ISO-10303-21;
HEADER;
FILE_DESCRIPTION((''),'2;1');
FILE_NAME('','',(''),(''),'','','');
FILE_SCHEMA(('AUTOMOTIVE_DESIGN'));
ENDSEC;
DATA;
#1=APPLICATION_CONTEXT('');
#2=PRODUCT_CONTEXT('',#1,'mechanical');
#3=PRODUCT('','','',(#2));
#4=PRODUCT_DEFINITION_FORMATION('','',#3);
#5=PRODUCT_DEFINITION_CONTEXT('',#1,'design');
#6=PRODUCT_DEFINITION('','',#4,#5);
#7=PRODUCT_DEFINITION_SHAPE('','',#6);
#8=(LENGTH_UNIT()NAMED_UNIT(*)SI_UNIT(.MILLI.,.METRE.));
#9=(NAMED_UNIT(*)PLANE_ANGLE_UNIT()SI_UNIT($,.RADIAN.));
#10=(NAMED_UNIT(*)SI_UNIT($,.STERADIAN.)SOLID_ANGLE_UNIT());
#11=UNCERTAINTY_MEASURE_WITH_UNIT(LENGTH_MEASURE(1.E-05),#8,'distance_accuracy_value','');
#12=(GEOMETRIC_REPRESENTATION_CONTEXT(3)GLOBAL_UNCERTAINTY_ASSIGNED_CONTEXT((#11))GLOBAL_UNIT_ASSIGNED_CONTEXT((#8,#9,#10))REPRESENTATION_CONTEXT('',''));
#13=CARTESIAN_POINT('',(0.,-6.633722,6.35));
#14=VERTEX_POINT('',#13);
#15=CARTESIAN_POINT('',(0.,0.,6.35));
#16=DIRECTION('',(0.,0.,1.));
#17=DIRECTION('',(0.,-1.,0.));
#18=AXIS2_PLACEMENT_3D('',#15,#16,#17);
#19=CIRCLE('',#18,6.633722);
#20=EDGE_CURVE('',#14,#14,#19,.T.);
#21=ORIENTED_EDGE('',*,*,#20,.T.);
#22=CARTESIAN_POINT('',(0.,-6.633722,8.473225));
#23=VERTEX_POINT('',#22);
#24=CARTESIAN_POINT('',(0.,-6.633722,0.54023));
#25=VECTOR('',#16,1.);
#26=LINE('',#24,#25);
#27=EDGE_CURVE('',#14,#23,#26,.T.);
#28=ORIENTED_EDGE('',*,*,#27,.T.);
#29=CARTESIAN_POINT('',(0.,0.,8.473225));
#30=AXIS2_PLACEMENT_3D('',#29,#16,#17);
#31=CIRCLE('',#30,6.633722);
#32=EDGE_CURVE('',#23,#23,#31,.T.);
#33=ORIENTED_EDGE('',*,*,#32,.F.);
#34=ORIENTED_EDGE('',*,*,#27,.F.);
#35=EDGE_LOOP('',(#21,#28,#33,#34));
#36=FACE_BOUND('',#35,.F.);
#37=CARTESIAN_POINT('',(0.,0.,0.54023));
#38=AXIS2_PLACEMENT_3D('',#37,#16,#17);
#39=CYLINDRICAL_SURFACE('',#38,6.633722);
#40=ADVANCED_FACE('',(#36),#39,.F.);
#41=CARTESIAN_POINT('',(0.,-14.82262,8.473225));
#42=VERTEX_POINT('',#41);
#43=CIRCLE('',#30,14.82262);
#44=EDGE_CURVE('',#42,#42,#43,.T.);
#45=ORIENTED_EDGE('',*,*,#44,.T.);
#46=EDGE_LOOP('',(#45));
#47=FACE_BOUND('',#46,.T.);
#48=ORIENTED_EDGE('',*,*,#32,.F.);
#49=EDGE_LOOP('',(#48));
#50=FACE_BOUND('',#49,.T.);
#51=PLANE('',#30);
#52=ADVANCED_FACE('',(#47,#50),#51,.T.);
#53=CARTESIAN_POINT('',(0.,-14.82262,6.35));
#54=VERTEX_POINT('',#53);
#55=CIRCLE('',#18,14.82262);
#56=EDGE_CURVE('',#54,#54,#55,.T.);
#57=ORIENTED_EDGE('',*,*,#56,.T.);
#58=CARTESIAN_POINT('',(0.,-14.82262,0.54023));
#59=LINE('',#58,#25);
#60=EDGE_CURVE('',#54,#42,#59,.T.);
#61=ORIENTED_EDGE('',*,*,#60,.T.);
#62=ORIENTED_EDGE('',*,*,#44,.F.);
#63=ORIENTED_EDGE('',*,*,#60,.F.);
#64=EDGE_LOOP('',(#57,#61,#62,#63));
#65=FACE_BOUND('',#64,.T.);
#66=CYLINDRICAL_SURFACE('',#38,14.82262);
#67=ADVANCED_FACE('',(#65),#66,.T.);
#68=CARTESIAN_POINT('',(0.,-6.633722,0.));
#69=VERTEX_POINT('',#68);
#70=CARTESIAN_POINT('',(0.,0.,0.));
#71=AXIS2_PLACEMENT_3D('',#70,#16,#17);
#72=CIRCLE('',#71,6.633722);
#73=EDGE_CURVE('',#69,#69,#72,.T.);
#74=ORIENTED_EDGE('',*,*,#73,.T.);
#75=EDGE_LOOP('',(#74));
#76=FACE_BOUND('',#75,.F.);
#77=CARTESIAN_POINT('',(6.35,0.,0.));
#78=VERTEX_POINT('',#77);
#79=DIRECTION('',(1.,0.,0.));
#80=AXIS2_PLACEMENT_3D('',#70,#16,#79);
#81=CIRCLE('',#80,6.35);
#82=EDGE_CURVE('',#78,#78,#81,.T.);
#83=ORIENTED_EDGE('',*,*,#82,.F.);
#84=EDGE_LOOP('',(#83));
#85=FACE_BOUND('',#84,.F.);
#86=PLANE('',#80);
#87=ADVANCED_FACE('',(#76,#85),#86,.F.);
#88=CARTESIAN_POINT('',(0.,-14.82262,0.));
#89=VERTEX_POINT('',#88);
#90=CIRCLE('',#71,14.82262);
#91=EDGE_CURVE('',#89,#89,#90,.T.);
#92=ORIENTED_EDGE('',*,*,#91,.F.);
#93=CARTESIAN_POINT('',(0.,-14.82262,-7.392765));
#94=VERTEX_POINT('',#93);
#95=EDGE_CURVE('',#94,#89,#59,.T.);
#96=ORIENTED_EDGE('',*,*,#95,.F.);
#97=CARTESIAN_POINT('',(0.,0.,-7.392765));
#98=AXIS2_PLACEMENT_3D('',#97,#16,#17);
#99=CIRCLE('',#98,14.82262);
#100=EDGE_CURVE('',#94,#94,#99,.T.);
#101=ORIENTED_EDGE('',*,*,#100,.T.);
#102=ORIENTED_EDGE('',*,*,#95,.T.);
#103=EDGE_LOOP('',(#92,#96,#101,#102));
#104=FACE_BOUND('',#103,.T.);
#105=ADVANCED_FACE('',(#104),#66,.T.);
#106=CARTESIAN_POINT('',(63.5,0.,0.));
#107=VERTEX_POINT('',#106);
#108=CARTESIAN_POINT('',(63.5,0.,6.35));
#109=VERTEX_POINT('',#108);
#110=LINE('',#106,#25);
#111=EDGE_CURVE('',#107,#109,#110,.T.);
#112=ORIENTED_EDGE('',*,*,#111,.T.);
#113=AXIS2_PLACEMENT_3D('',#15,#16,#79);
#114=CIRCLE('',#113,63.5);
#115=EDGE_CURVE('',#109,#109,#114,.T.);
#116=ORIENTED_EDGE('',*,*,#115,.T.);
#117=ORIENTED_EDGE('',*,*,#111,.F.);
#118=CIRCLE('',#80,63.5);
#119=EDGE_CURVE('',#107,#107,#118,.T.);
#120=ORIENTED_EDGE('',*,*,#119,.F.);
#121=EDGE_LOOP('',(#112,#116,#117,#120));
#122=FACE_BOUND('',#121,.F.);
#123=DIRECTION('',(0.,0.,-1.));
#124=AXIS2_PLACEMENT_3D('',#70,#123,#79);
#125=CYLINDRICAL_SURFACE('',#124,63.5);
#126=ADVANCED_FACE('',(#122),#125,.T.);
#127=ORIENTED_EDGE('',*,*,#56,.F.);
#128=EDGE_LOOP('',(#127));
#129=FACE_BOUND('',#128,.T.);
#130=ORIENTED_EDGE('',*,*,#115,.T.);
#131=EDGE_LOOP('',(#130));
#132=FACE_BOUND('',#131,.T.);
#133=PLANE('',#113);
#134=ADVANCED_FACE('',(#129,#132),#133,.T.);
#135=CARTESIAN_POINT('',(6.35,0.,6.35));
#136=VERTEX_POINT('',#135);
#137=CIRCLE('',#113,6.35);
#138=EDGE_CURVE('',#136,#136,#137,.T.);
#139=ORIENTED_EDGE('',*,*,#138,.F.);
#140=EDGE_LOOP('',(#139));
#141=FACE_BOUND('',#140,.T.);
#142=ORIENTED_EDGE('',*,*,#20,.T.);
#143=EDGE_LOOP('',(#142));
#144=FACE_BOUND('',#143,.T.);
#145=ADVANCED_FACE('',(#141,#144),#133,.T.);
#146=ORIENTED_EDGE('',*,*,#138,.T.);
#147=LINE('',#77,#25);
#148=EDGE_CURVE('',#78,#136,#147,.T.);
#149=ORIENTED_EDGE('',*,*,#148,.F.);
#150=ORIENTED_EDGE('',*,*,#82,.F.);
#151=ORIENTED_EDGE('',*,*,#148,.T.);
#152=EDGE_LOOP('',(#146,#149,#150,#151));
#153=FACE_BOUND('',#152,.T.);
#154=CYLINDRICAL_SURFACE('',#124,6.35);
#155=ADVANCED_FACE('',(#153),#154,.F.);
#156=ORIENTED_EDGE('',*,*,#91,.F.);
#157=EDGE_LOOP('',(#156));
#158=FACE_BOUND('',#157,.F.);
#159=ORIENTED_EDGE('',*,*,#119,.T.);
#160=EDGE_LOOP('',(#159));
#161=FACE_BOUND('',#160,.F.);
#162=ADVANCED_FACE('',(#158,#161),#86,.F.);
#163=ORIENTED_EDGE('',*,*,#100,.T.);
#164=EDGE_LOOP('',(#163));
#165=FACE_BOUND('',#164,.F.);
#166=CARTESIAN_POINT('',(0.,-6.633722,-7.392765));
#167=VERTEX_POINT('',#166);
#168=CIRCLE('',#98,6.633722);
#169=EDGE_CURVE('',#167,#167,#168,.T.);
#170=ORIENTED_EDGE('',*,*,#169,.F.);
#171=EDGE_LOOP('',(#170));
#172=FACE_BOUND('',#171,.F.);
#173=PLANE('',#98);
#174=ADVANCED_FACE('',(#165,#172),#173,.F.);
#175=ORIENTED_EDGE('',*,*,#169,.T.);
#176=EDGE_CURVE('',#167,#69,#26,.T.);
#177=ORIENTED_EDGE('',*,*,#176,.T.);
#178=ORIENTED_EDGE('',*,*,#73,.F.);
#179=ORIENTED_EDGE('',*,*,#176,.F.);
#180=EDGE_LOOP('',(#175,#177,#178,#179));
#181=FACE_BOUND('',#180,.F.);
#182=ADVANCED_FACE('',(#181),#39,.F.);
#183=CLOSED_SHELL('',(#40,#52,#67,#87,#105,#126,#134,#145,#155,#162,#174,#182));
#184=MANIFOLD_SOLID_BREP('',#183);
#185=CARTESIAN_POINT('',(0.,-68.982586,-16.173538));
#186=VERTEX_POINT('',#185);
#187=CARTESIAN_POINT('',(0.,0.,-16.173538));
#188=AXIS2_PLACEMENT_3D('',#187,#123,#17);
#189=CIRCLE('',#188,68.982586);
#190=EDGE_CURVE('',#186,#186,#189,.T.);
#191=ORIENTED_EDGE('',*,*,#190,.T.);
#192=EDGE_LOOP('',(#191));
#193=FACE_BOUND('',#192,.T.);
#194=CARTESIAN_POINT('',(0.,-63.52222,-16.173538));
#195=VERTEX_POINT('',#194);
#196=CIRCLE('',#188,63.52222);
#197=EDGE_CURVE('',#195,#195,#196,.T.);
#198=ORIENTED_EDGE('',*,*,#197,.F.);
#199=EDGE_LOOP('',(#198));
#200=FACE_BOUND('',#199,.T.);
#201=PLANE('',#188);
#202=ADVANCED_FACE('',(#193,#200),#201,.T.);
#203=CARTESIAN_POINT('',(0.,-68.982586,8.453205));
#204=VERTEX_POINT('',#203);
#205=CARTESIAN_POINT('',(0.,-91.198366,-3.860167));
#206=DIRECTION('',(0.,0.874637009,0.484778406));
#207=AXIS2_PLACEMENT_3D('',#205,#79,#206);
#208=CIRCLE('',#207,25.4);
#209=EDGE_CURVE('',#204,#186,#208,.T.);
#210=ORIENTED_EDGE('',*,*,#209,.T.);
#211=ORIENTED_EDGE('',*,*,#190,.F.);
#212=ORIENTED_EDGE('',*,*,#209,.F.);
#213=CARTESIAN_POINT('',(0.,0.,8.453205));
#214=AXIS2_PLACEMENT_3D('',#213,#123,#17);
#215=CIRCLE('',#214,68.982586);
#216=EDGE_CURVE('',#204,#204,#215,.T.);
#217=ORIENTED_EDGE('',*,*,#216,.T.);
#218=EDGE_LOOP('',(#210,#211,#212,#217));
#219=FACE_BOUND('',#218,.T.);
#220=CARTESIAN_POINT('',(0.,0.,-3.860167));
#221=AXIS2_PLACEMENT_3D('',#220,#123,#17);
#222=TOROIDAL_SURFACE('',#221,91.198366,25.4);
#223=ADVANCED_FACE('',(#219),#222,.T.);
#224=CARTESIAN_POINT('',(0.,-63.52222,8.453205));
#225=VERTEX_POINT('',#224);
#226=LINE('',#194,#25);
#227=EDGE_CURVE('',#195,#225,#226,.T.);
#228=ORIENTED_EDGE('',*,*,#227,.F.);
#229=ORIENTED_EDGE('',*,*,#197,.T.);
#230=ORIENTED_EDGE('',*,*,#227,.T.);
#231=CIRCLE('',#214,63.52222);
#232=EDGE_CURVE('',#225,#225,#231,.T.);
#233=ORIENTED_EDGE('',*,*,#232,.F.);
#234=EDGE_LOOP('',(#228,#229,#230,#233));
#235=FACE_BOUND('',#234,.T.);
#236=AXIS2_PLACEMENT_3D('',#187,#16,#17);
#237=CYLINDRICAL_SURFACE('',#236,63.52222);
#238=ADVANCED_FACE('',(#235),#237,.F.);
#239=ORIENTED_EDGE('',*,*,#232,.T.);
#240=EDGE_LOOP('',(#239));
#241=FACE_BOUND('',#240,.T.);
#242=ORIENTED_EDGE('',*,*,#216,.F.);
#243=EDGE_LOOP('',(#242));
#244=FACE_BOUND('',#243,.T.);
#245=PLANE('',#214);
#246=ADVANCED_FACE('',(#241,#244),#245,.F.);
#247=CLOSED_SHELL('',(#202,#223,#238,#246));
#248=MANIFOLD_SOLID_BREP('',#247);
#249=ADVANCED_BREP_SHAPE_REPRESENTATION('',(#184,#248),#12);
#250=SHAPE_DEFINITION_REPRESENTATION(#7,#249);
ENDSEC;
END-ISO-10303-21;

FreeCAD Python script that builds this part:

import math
import FreeCAD as App
import Part
import Sketcher
Q = App.Units.Quantity


def add_polygon(sketch, points):
    """Adds a closed chain of lines whose ends are joined by coincident constraints."""
    first, n = sketch.GeometryCount, len(points)
    for a, b in zip(points, points[1:] + points[:1]):
        sketch.addGeometry(Part.LineSegment(App.Vector(*a, 0), App.Vector(*b, 0)), False)
    for i in range(n):
        sketch.addConstraint(Sketcher.Constraint("Coincident", first + i, 2, first + (i + 1) % n, 1))

doc = App.newDocument("Part")
body = doc.addObject("PartDesign::Body", "Body")

sketch1 = body.newObject("Sketcher::SketchObject", "Sketch")
sketch1.AttachmentSupport = (doc.getObject("XY_Plane"), [""])
sketch1.MapMode = "FlatFace"
sketch1.addGeometry([
    Part.Circle(App.Vector(0, 0, 0), App.Vector(0, 0, 1), 64),
    Part.Circle(App.Vector(0, 0, 0), App.Vector(0, 0, 1), 6),
], False)
sketch1.addConstraint([
    Sketcher.Constraint("Coincident", 0, 3, -1, 1),
    Sketcher.Constraint("Coincident", 1, 3, -1, 1),
    Sketcher.Constraint("Diameter", 0, Q("5 in")),
    Sketcher.Constraint("Diameter", 1, Q("0.5 in")),
])
pad1 = body.newObject("PartDesign::Pad", "Pad")
pad1.Profile = sketch1
pad1.Length = Q("0.25 in")

sketch2 = body.newObject("Sketcher::SketchObject", "Sketch001")
sketch2.AttachmentSupport = (doc.getObject("YZ_Plane"), [""])
sketch2.MapMode = "FlatFace"
add_polygon(sketch2, [(-15, 8), (-15, -7), (-7, -7), (-7, 8)])
sketch2.addConstraint([
    Sketcher.Constraint("Vertical", 0),
    Sketcher.Constraint("Horizontal", 1),
    Sketcher.Constraint("Vertical", 2),
    Sketcher.Constraint("Horizontal", 3),
    Sketcher.Constraint("DistanceX", 1, 1, 1, 2, 8.188898),
    Sketcher.Constraint("DistanceY", 0, 2, 0, 1, 15.86599),
    Sketcher.Constraint("DistanceX", 0, 2, -1, 1, 14.82262),
    Sketcher.Constraint("DistanceY", 0, 2, -1, 1, 7.392765),
])
revolution = body.newObject("PartDesign::Revolution", "Revolution")
revolution.Profile = sketch2
revolution.ReferenceAxis = (sketch2, ["V_Axis"])
revolution.Angle = 360
body2 = doc.addObject("PartDesign::Body", "Body001")

sketch3 = body2.newObject("Sketcher::SketchObject", "Sketch002")
sketch3.AttachmentSupport = (doc.getObject("YZ_Plane001"), [""])
sketch3.MapMode = "FlatFace"
sketch3.addGeometry([
    Part.ArcOfCircle(Part.Circle(App.Vector(-91, -4, 0), App.Vector(0, 0, 1), 25), math.radians(29), math.radians(331)),
    Part.LineSegment(App.Vector(-69, -16, 0), App.Vector(-64, -16, 0)),
    Part.LineSegment(App.Vector(-64, -16, 0), App.Vector(-64, 8, 0)),
    Part.LineSegment(App.Vector(-64, 8, 0), App.Vector(-69, 8, 0)),
], False)
sketch3.addConstraint([
    Sketcher.Constraint("Coincident", 0, 2, 1, 1),
    Sketcher.Constraint("Coincident", 1, 2, 2, 1),
    Sketcher.Constraint("Coincident", 2, 2, 3, 1),
    Sketcher.Constraint("Coincident", 3, 2, 0, 1),
    Sketcher.Constraint("Horizontal", 1),
    Sketcher.Constraint("Vertical", 2),
    Sketcher.Constraint("Horizontal", 3),
    Sketcher.Constraint("Vertical", 0, 2, 3, 2),
    Sketcher.Constraint("Radius", 0, Q("1 in")),
    Sketcher.Constraint("DistanceX", 1, 1, 1, 2, 5.460366),
    Sketcher.Constraint("DistanceY", 2, 1, 2, 2, 24.626743),
    Sketcher.Constraint("DistanceX", 1, 2, -1, 1, 63.52222),
    Sketcher.Constraint("DistanceY", 1, 2, -1, 1, 16.173538),
])
revolution2 = body2.newObject("PartDesign::Revolution", "Revolution001")
revolution2.Profile = sketch3
revolution2.ReferenceAxis = (sketch3, ["V_Axis"])
revolution2.Angle = 360

doc.recompute()
